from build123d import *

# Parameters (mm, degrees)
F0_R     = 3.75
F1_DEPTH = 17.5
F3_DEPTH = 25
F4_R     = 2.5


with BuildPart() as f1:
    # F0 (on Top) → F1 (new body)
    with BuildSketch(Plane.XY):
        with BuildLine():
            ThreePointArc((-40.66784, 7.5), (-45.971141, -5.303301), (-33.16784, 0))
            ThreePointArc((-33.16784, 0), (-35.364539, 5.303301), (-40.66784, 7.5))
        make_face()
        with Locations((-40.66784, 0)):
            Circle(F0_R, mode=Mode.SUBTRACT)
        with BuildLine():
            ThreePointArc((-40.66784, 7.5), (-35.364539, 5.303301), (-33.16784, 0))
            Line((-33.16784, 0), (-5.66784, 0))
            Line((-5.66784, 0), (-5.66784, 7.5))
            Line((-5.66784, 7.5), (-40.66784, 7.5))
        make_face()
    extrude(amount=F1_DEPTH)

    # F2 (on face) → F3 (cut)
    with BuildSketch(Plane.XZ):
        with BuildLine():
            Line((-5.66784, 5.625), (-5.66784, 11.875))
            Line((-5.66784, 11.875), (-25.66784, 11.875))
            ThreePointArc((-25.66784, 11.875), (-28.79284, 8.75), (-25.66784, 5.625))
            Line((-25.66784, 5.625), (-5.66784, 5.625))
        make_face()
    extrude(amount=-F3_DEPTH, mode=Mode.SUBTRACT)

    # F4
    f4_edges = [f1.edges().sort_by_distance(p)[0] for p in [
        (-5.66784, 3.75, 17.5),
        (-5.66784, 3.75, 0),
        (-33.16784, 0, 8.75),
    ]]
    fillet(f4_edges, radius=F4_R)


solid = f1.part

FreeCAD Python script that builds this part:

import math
import FreeCAD as App
import Part
import Sketcher

V = App.Vector
Q = App.Units.Quantity


def edges_at(feature, points):
    """Names of the edges that pass closest to the given points."""
    edges = feature.Shape.Edges
    near = lambda p: min(range(len(edges)), key=lambda i: edges[i].distToShape(Part.Vertex(*p))[0])
    return sorted({f"Edge{near(p) + 1}" for p in points})

doc = App.newDocument("Part")
body = doc.addObject("PartDesign::Body", "Body")

# Sketch on XY plane
sketch1 = body.newObject("Sketcher::SketchObject", "Sketch")
sketch1.AttachmentSupport = (doc.getObject("XY_Plane"), [""])
sketch1.MapMode = "FlatFace"
sketch1.addGeometry(Part.ArcOfCircle(Part.Circle(V(-40.7, 0, 0), V(0, 0, 1), 7.5), math.radians(90), math.radians(360)), False)
sketch1.addGeometry(Part.LineSegment(V(-33.2, 0, 0), V(-5.7, 0, 0)), False)
sketch1.addGeometry(Part.LineSegment(V(-5.7, 0, 0), V(-5.7, 7.5, 0)), False)
sketch1.addGeometry(Part.LineSegment(V(-5.7, 7.5, 0), V(-40.7, 7.5, 0)), False)
sketch1.addGeometry(Part.Circle(V(-40.7, 0, 0), V(0, 0, 1), 3.8), False)
sketch1.addConstraint(Sketcher.Constraint("Coincident", 0, 2, 1, 1))
sketch1.addConstraint(Sketcher.Constraint("Coincident", 1, 2, 2, 1))
sketch1.addConstraint(Sketcher.Constraint("Coincident", 2, 2, 3, 1))
sketch1.addConstraint(Sketcher.Constraint("Tangent", 3, 2, 0, 1))
sketch1.addConstraint(Sketcher.Constraint("Horizontal", 1))
sketch1.addConstraint(Sketcher.Constraint("Vertical", 2))
sketch1.addConstraint(Sketcher.Constraint("Horizontal", 3))
sketch1.addConstraint(Sketcher.Constraint("Coincident", 4, 3, 0, 3))
sketch1.addConstraint(Sketcher.Constraint("PointOnObject", 0, 3, -1))
sketch1.addConstraint(Sketcher.Constraint("PointOnObject", 0, 2, -1))
sketch1.addConstraint(Sketcher.Constraint("Diameter", 4, Q("7.5 mm")))
sketch1.addConstraint(Sketcher.Constraint("Radius", 0, Q("7.5 mm")))
sketch1.addConstraint(Sketcher.Constraint("DistanceX", 3, 2, 3, 1, Q("35 mm")))
sketch1.addConstraint(Sketcher.Constraint("DistanceX", 0, 3, -1, 1, Q("40.66784 mm")))
pad1 = body.newObject("PartDesign::Pad", "Pad")
pad1.Profile = sketch1
pad1.Length = 17.5

# Sketch on XZ plane
sketch2 = body.newObject("Sketcher::SketchObject", "Sketch001")
sketch2.AttachmentSupport = (doc.getObject("XZ_Plane"), [""])
sketch2.MapMode = "FlatFace"
sketch2.addGeometry(Part.LineSegment(V(-5.7, 5.6, 0), V(-5.7, 11.9, 0)), False)
sketch2.addGeometry(Part.LineSegment(V(-5.7, 11.9, 0), V(-25.7, 11.9, 0)), False)
sketch2.addGeometry(Part.ArcOfCircle(Part.Circle(V(-25.7, 8.8, 0), V(0, 0, 1), 3.1), math.radians(90), math.radians(270)), False)
sketch2.addGeometry(Part.LineSegment(V(-25.7, 5.6, 0), V(-5.7, 5.6, 0)), False)
sketch2.addConstraint(Sketcher.Constraint("Coincident", 0, 2, 1, 1))
sketch2.addConstraint(Sketcher.Constraint("Tangent", 1, 2, 2, 1))
sketch2.addConstraint(Sketcher.Constraint("Tangent", 2, 2, 3, 1))
sketch2.addConstraint(Sketcher.Constraint("Coincident", 3, 2, 0, 1))
sketch2.addConstraint(Sketcher.Constraint("Vertical", 0))
sketch2.addConstraint(Sketcher.Constraint("Horizontal", 1))
sketch2.addConstraint(Sketcher.Constraint("Horizontal", 3))
sketch2.addConstraint(Sketcher.Constraint("DistanceX", 1, 2, 1, 1, Q("20 mm")))
sketch2.addConstraint(Sketcher.Constraint("Radius", 2, Q("3.125 mm")))
sketch2.addConstraint(Sketcher.Constraint("DistanceY", -1, 1, 2, 3, Q("8.75 mm")))
sketch2.addConstraint(Sketcher.Constraint("DistanceX", 2, 3, -1, 1, Q("25.66784 mm")))
pocket1 = body.newObject("PartDesign::Pocket", "Pocket")
pocket1.Profile = sketch2
pocket1.Length = 25
doc.recompute()

fillet = body.newObject("PartDesign::Fillet", "Fillet")
fillet.Base = (pocket1, edges_at(pocket1, [(-5.668, 3.75, 17.5), (-5.668, 3.75, 0), (-33.168, 0, 8.75)]))
fillet.Radius = 2.5

doc.recompute()
